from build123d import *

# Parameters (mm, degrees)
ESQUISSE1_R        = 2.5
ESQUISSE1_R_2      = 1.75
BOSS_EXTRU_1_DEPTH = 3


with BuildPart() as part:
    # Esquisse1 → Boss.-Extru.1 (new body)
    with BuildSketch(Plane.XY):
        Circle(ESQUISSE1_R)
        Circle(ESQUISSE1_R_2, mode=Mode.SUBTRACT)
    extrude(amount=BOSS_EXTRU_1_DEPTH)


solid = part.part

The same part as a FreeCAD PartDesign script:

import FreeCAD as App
import Part
import Sketcher
Q = App.Units.Quantity

doc = App.newDocument("Part")
body = doc.addObject("PartDesign::Body", "Body")

# Sketch on XY plane
sketch1 = doc.addObject("Sketcher::SketchObject", "Sketch")
body.addObject(sketch1)
sketch1.AttachmentSupport = (doc.XY_Plane, [""])
sketch1.MapMode = "FlatFace"
sketch1.addGeometry(Part.Circle(App.Vector(0, 0, 0), App.Vector(0, 0, 1), 2.5), False)
sketch1.addGeometry(Part.Circle(App.Vector(0, 0, 0), App.Vector(0, 0, 1), 1.75), False)
sketch1.addConstraint(Sketcher.Constraint("Coincident", 0, 3, -1, 1))
sketch1.addConstraint(Sketcher.Constraint("Coincident", 1, 3, -1, 1))
sketch1.addConstraint(Sketcher.Constraint("Diameter", 0, Q("5 mm")))
sketch1.addConstraint(Sketcher.Constraint("Diameter", 1, Q("3.5 mm")))
pad1 = doc.addObject("PartDesign::Pad", "Pad")
body.addObject(pad1)
pad1.Profile = sketch1
pad1.Length = 3

doc.recompute()
